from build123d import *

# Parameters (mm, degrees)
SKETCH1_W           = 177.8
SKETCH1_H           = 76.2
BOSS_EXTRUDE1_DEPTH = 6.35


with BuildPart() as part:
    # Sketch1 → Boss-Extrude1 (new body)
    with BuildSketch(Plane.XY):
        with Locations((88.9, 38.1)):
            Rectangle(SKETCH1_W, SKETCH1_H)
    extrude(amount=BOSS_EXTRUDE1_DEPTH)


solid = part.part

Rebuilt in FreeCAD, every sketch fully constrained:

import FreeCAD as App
import Part
import Sketcher
from FreeCAD import Vector
Q = App.Units.Quantity


def add_polygon(sketch, points):
    """Adds a closed chain of lines whose ends are joined by coincident constraints."""
    first, n = sketch.GeometryCount, len(points)
    for a, b in zip(points, points[1:] + points[:1]):
        sketch.addGeometry(Part.LineSegment(App.Vector(*a, 0), App.Vector(*b, 0)), False)
    for i in range(n):
        sketch.addConstraint(Sketcher.Constraint("Coincident", first + i, 2, first + (i + 1) % n, 1))

doc = App.newDocument("Part")
params = doc.addObject("Spreadsheet::Sheet", "Params")
for row, (alias, value) in enumerate([
    ("sketch1_width", "7 in"),
    ("sketch1_height", "3 in"),
    ("pad1_length", "0.25 in"),
], start=1):
    params.set(f"A{row}", alias)
    params.set(f"B{row}", "=" + value)
    params.setAlias(f"B{row}", alias)

body = doc.addObject("PartDesign::Body", "Body")

sketch1 = doc.addObject("Sketcher::SketchObject", "Sketch")
body.addObject(sketch1)
sketch1.AttachmentSupport = (doc.XY_Plane, [""])
sketch1.MapMode = "FlatFace"
add_polygon(sketch1, [(0, 76), (0, 0), (178, 0), (178, 76)])
sketch1.addConstraint([
    Sketcher.Constraint("Vertical", 0),
    Sketcher.Constraint("Horizontal", 1),
    Sketcher.Constraint("Vertical", 2),
    Sketcher.Constraint("Horizontal", 3),
    Sketcher.Constraint("Coincident", 0, 2, -1, 1),
    Sketcher.Constraint("DistanceX", 1, 1, 1, 2, Q("7 in")),
    Sketcher.Constraint("DistanceY", 0, 2, 0, 1, Q("3 in")),
])
sketch1.setExpression("Constraints[9]", "Params.sketch1_width")
sketch1.setExpression("Constraints[10]", "Params.sketch1_height")
pad1 = doc.addObject("PartDesign::Pad", "Pad")
body.addObject(pad1)
pad1.Profile = sketch1
pad1.setExpression("Length", "Params.pad1_length")

doc.recompute()
